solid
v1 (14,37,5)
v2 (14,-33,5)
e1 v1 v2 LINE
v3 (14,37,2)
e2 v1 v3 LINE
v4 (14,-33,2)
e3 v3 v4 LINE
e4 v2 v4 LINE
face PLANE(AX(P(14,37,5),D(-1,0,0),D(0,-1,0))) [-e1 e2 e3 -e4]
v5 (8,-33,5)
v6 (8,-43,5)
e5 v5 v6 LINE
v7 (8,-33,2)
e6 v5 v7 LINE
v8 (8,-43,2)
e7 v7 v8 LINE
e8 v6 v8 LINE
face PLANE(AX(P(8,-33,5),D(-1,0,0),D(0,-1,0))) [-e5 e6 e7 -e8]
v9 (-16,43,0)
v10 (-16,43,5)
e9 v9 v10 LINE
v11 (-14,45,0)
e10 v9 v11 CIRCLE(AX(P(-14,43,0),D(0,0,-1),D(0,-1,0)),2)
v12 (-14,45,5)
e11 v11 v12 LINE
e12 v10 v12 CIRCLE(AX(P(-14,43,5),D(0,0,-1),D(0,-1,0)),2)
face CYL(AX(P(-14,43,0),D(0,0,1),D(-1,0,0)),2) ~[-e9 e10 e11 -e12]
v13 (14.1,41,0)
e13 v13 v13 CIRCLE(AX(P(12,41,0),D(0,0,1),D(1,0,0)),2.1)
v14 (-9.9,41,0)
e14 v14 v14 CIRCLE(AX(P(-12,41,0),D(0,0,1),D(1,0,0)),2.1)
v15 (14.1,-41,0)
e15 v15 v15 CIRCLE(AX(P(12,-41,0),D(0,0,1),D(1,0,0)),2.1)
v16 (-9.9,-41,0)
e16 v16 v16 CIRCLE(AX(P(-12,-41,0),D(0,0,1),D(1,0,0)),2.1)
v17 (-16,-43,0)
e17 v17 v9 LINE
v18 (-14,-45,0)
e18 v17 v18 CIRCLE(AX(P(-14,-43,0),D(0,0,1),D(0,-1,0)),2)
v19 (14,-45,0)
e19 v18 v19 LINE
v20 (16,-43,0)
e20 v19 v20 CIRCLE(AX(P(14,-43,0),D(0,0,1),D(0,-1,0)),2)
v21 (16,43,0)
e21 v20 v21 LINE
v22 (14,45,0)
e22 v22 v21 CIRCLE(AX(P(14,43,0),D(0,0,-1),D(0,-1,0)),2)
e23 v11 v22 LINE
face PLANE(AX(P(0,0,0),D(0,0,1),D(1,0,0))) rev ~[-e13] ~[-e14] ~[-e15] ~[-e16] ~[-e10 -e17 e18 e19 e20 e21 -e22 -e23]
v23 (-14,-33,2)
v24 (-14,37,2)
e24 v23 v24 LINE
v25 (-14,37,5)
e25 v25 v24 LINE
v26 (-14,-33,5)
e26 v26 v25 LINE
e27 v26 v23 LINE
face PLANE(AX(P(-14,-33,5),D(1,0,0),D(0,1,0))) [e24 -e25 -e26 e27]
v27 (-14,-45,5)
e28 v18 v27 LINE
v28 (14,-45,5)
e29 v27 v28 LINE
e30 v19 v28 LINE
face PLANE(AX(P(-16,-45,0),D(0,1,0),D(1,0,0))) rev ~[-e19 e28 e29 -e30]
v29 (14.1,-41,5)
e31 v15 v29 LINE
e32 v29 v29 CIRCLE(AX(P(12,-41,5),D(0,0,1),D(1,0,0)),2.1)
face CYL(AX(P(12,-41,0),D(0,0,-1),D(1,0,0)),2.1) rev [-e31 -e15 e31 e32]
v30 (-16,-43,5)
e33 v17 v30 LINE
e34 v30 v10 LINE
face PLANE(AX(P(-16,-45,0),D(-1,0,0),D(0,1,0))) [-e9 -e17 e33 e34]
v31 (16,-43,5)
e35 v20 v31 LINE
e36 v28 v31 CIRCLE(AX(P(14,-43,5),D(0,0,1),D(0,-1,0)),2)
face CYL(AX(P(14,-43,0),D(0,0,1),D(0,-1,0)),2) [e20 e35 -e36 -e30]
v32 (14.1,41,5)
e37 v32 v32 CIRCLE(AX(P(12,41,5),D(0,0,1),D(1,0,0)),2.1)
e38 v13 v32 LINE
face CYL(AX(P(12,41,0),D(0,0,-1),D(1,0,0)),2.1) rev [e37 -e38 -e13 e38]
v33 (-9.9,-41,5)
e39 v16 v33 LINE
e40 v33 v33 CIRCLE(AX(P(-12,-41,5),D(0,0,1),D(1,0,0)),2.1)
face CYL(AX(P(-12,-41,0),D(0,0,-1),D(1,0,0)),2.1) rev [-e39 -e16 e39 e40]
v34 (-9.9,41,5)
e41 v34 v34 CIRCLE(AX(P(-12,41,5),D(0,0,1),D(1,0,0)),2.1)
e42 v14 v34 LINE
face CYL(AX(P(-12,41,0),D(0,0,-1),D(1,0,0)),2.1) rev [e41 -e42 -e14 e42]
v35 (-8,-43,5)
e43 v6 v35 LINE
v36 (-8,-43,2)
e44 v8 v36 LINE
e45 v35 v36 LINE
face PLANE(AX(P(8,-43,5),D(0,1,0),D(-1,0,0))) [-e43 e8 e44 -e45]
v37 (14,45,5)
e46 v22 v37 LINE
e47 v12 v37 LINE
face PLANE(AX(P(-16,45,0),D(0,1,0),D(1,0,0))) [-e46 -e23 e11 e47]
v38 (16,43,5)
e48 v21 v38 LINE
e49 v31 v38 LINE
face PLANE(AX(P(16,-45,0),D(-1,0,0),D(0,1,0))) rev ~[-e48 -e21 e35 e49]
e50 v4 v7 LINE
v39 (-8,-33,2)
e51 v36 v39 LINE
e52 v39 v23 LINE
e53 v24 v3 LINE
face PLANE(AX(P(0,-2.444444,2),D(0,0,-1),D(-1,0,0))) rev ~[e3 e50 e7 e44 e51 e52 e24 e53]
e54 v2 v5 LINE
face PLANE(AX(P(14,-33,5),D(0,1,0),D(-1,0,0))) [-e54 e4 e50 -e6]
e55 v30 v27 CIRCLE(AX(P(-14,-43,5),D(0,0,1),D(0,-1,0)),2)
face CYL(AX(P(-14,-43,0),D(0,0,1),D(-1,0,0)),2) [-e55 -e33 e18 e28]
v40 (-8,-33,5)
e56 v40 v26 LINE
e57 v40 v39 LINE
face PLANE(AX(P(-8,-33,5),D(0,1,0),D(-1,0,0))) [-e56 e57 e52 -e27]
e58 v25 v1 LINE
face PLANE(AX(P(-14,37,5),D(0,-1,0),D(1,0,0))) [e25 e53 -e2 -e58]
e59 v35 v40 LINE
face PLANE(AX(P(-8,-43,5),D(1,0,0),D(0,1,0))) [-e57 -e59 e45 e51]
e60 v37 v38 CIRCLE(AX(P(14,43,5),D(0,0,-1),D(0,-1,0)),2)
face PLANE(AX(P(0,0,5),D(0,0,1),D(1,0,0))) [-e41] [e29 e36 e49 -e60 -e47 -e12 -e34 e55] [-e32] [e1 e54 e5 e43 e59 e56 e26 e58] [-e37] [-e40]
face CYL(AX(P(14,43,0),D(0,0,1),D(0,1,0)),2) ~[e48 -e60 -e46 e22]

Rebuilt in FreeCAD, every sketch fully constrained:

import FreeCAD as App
import Part
import Sketcher
from FreeCAD import Vector
Q = App.Units.Quantity


def edges_at(feature, points):
    """Names of the edges that pass closest to the given points."""
    edges = feature.Shape.Edges
    near = lambda p: min(range(len(edges)), key=lambda i: edges[i].distToShape(Part.Vertex(*p))[0])
    return sorted({f"Edge{near(p) + 1}" for p in points})


def add_polygon(sketch, points):
    """Adds a closed chain of lines whose ends are joined by coincident constraints."""
    first, n = sketch.GeometryCount, len(points)
    for a, b in zip(points, points[1:] + points[:1]):
        sketch.addGeometry(Part.LineSegment(App.Vector(*a, 0), App.Vector(*b, 0)), False)
    for i in range(n):
        sketch.addConstraint(Sketcher.Constraint("Coincident", first + i, 2, first + (i + 1) % n, 1))

doc = App.newDocument("Part")
body = doc.addObject("PartDesign::Body", "Body")

# Sketch on XY plane
sketch1 = body.newObject("Sketcher::SketchObject", "Sketch")
sketch1.AttachmentSupport = (doc.getObject("XY_Plane"), [""])
sketch1.MapMode = "FlatFace"
sketch1.AttachmentOffset = App.Placement(Vector(0, 0, 5), App.Rotation())
add_polygon(sketch1, [(14, -33), (14, 37), (-14, 37), (-14, -33), (-8, -33), (-8, -43), (8, -43), (8, -33)])  # lines 0-7
sketch1.addConstraint(Sketcher.Constraint("Vertical", 0))
sketch1.addConstraint(Sketcher.Constraint("Horizontal", 1))
sketch1.addConstraint(Sketcher.Constraint("Vertical", 2))
sketch1.addConstraint(Sketcher.Constraint("Horizontal", 3))
sketch1.addConstraint(Sketcher.Constraint("Vertical", 4))
sketch1.addConstraint(Sketcher.Constraint("Horizontal", 5))
sketch1.addConstraint(Sketcher.Constraint("Vertical", 6))
sketch1.addConstraint(Sketcher.Constraint("Horizontal", 7))
sketch1.addConstraint(Sketcher.Constraint("Symmetric", 3, 2, 6, 2, -2))
sketch1.addConstraint(Sketcher.Constraint("Equal", 3, 7))
sketch1.addConstraint(Sketcher.Constraint("DistanceX", 1, 2, 1, 1, Q("28 mm")))
sketch1.addConstraint(Sketcher.Constraint("DistanceX", 3, 1, 3, 2, Q("6 mm")))
sketch1.addConstraint(Sketcher.Constraint("DistanceY", 0, 1, 0, 2, Q("70 mm")))
sketch1.addConstraint(Sketcher.Constraint("DistanceY", 4, 2, 4, 1, Q("10 mm")))
sketch1.addConstraint(Sketcher.Constraint("DistanceY", -1, 1, 0, 2, Q("37 mm")))
pad1 = body.newObject("PartDesign::Pad", "Pad")
pad1.Profile = sketch1
pad1.Length = 3
pad1.Reversed = True
body2 = doc.addObject("PartDesign::Body", "Body001")

# Sketch on XY plane
sketch2 = body2.newObject("Sketcher::SketchObject", "Sketch001")
sketch2.AttachmentSupport = (doc.getObject("XY_Plane001"), [""])
sketch2.MapMode = "FlatFace"
add_polygon(sketch2, [(-16, 45), (-16, -45), (16, -45), (16, 45)])  # lines 0-3
sketch2.addGeometry(Part.Circle(Vector(-12, -41, 0), Vector(0, 0, 1), 2.1), False)  # 4
sketch2.addGeometry(Part.Circle(Vector(12, -41, 0), Vector(0, 0, 1), 2.1), False)  # 5
sketch2.addGeometry(Part.Circle(Vector(-12, 41, 0), Vector(0, 0, 1), 2.1), False)  # 6
sketch2.addGeometry(Part.Circle(Vector(12, 41, 0), Vector(0, 0, 1), 2.1), False)  # 7
sketch2.addConstraint(Sketcher.Constraint("Vertical", 0))
sketch2.addConstraint(Sketcher.Constraint("Horizontal", 1))
sketch2.addConstraint(Sketcher.Constraint("Vertical", 2))
sketch2.addConstraint(Sketcher.Constraint("Horizontal", 3))
sketch2.addConstraint(Sketcher.Constraint("Equal", 4, 5))
sketch2.addConstraint(Sketcher.Constraint("Equal", 5, 6))
sketch2.addConstraint(Sketcher.Constraint("Equal", 6, 7))
sketch2.addConstraint(Sketcher.Constraint("Symmetric", 5, 3, 6, 3, -1, 1))
sketch2.addConstraint(Sketcher.Constraint("Symmetric", 4, 3, 7, 3, -1, 1))
sketch2.addConstraint(Sketcher.Constraint("Symmetric", 0, 2, 2, 2, -1, 1))
sketch2.addConstraint(Sketcher.Constraint("Symmetric", 4, 3, 5, 3, -2))
sketch2.addConstraint(Sketcher.Constraint("Diameter", 4, Q("4.2 mm")))
sketch2.addConstraint(Sketcher.Constraint("DistanceX", 1, 1, 1, 2, Q("32 mm")))
sketch2.addConstraint(Sketcher.Constraint("DistanceY", 0, 2, 0, 1, Q("90 mm")))
sketch2.addConstraint(Sketcher.Constraint("DistanceX", 4, 3, -1, 1, Q("12 mm")))
sketch2.addConstraint(Sketcher.Constraint("DistanceY", 4, 3, -1, 1, Q("41 mm")))
pad2 = body2.newObject("PartDesign::Pad", "Pad001")
pad2.Profile = sketch2
pad2.Length = 5
doc.recompute()

fillet = body2.newObject("PartDesign::Fillet", "Fillet")
fillet.Base = (pad2, edges_at(pad2, [
    (-16, 45, 2.5),
    (16, 45, 2.5),
    (16, -45, 2.5),
    (-16, -45, 2.5),
]))
fillet.Radius = 2
doc.recompute()

boolean = body2.newObject("PartDesign::Boolean", "Boolean")
boolean.Type = "Cut"
boolean.addObjects([body])

doc.recompute()
